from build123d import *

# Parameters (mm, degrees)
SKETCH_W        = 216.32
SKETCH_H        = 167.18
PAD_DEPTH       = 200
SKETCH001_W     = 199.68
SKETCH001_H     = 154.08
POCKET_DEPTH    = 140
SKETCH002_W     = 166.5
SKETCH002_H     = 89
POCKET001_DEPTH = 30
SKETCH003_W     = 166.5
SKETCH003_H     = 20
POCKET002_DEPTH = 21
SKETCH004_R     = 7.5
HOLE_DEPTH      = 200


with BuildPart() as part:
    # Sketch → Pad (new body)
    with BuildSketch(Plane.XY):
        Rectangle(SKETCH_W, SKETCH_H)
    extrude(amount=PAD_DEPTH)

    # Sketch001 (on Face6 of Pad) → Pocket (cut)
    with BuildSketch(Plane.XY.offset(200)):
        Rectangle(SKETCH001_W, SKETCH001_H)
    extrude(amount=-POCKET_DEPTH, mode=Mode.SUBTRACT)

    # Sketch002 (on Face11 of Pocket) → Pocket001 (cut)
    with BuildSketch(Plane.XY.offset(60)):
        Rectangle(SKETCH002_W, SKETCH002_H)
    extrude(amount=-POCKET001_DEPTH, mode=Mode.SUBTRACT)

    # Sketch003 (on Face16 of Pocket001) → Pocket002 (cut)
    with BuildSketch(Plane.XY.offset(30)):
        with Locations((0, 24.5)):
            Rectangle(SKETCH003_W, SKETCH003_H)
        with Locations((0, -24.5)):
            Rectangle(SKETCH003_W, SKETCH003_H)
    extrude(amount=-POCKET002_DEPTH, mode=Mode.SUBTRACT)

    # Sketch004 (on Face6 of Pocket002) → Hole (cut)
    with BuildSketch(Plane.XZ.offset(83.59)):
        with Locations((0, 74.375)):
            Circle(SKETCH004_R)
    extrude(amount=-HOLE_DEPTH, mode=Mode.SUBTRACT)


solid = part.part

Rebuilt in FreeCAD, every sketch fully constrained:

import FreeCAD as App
import Part
import Sketcher
Q = App.Units.Quantity

doc = App.newDocument("Part")
params = doc.addObject("Spreadsheet::Sheet", "Params")
for row, (alias, value) in enumerate([
    ("sketch1_width", "216.32 mm"),
    ("sketch1_height", "167.18 mm"),
    ("pad1_length", "200 mm"),
    ("sketch2_width", "199.68 mm"),
    ("sketch2_height", "154.08 mm"),
    ("pocket1_length", "140 mm"),
    ("sketch3_height", "89 mm"),
    ("sketch3_width", "166.5 mm"),
    ("pocket2_length", "30 mm"),
    ("sketch4_height", "20 mm"),
    ("sketch4_width", "166.5 mm"),
    ("pocket3_length", "21 mm"),
    ("sketch5_diameter", "15 mm"),
    ("pocket4_length", "200 mm"),
], start=1):
    params.set(f"A{row}", alias)
    params.set(f"B{row}", "=" + value)
    params.setAlias(f"B{row}", alias)

body = doc.addObject("PartDesign::Body", "Body")

# Sketch on XY plane
sketch1 = body.newObject("Sketcher::SketchObject", "Sketch")
sketch1.AttachmentSupport = (doc.getObject("XY_Plane"), [""])
sketch1.MapMode = "FlatFace"
sketch1.addGeometry([
    Part.LineSegment(App.Vector(-108, 84, 0), App.Vector(-108, -84, 0)),
    Part.LineSegment(App.Vector(-108, -84, 0), App.Vector(108, -84, 0)),
    Part.LineSegment(App.Vector(108, -84, 0), App.Vector(108, 84, 0)),
    Part.LineSegment(App.Vector(108, 84, 0), App.Vector(-108, 84, 0)),
], False)
sketch1.addConstraint([
    Sketcher.Constraint("Coincident", 0, 2, 1, 1),
    Sketcher.Constraint("Coincident", 1, 2, 2, 1),
    Sketcher.Constraint("Coincident", 2, 2, 3, 1),
    Sketcher.Constraint("Coincident", 3, 2, 0, 1),
    Sketcher.Constraint("Vertical", 0),
    Sketcher.Constraint("Horizontal", 1),
    Sketcher.Constraint("Vertical", 2),
    Sketcher.Constraint("Horizontal", 3),
    Sketcher.Constraint("Symmetric", 0, 2, 2, 2, -1, 1),
    Sketcher.Constraint("DistanceX", 1, 1, 1, 2, Q("216.32 mm")),
    Sketcher.Constraint("DistanceY", 0, 2, 0, 1, Q("167.18 mm")),
])
sketch1.setExpression("Constraints[9]", "Params.sketch1_width")
sketch1.setExpression("Constraints[10]", "Params.sketch1_height")
pad1 = body.newObject("PartDesign::Pad", "Pad")
pad1.Profile = sketch1
pad1.setExpression("Length", "Params.pad1_length")

# Sketch on XY plane
sketch2 = body.newObject("Sketcher::SketchObject", "Sketch001")
sketch2.AttachmentSupport = (doc.getObject("XY_Plane"), [""])
sketch2.MapMode = "FlatFace"
sketch2.AttachmentOffset = App.Placement(App.Vector(0, 0, 200), App.Rotation())
sketch2.addGeometry([
    Part.LineSegment(App.Vector(-100, 77, 0), App.Vector(-100, -77, 0)),
    Part.LineSegment(App.Vector(-100, -77, 0), App.Vector(100, -77, 0)),
    Part.LineSegment(App.Vector(100, -77, 0), App.Vector(100, 77, 0)),
    Part.LineSegment(App.Vector(100, 77, 0), App.Vector(-100, 77, 0)),
], False)
sketch2.addConstraint([
    Sketcher.Constraint("Coincident", 0, 2, 1, 1),
    Sketcher.Constraint("Coincident", 1, 2, 2, 1),
    Sketcher.Constraint("Coincident", 2, 2, 3, 1),
    Sketcher.Constraint("Coincident", 3, 2, 0, 1),
    Sketcher.Constraint("Vertical", 0),
    Sketcher.Constraint("Horizontal", 1),
    Sketcher.Constraint("Vertical", 2),
    Sketcher.Constraint("Horizontal", 3),
    Sketcher.Constraint("Symmetric", 0, 2, 2, 2, -1, 1),
    Sketcher.Constraint("DistanceX", 1, 1, 1, 2, Q("199.68 mm")),
    Sketcher.Constraint("DistanceY", 0, 2, 0, 1, Q("154.08 mm")),
])
sketch2.setExpression("Constraints[9]", "Params.sketch2_width")
sketch2.setExpression("Constraints[10]", "Params.sketch2_height")
pocket1 = body.newObject("PartDesign::Pocket", "Pocket")
pocket1.Profile = sketch2
pocket1.setExpression("Length", "Params.pocket1_length")

# Sketch on XY plane
sketch3 = body.newObject("Sketcher::SketchObject", "Sketch002")
sketch3.AttachmentSupport = (doc.getObject("XY_Plane"), [""])
sketch3.MapMode = "FlatFace"
sketch3.AttachmentOffset = App.Placement(App.Vector(0, 0, 60), App.Rotation())
sketch3.addGeometry([
    Part.LineSegment(App.Vector(-83, 44, 0), App.Vector(-83, -44, 0)),
    Part.LineSegment(App.Vector(-83, -44, 0), App.Vector(83, -44, 0)),
    Part.LineSegment(App.Vector(83, -44, 0), App.Vector(83, 44, 0)),
    Part.LineSegment(App.Vector(83, 44, 0), App.Vector(-83, 44, 0)),
], False)
sketch3.addConstraint([
    Sketcher.Constraint("Coincident", 0, 2, 1, 1),
    Sketcher.Constraint("Coincident", 1, 2, 2, 1),
    Sketcher.Constraint("Coincident", 2, 2, 3, 1),
    Sketcher.Constraint("Coincident", 3, 2, 0, 1),
    Sketcher.Constraint("Vertical", 0),
    Sketcher.Constraint("Horizontal", 1),
    Sketcher.Constraint("Vertical", 2),
    Sketcher.Constraint("Horizontal", 3),
    Sketcher.Constraint("Symmetric", 0, 2, 2, 2, -1, 1),
    Sketcher.Constraint("DistanceY", 0, 2, 0, 1, Q("89 mm")),
    Sketcher.Constraint("DistanceX", 1, 1, 1, 2, Q("166.5 mm")),
])
sketch3.setExpression("Constraints[9]", "Params.sketch3_height")
sketch3.setExpression("Constraints[10]", "Params.sketch3_width")
pocket2 = body.newObject("PartDesign::Pocket", "Pocket001")
pocket2.Profile = sketch3
pocket2.setExpression("Length", "Params.pocket2_length")

# Sketch on XY plane
sketch4 = body.newObject("Sketcher::SketchObject", "Sketch003")
sketch4.AttachmentSupport = (doc.getObject("XY_Plane"), [""])
sketch4.MapMode = "FlatFace"
sketch4.AttachmentOffset = App.Placement(App.Vector(0, 0, 30), App.Rotation())
sketch4.addGeometry([
    Part.LineSegment(App.Vector(-83, 34, 0), App.Vector(-83, 14, 0)),  # 0
    Part.LineSegment(App.Vector(-83, 14, 0), App.Vector(83, 14, 0)),  # 1
    Part.LineSegment(App.Vector(83, 14, 0), App.Vector(83, 34, 0)),  # 2
    Part.LineSegment(App.Vector(83, 34, 0), App.Vector(-83, 34, 0)),  # 3
    Part.LineSegment(App.Vector(-83, -14, 0), App.Vector(-83, -34, 0)),  # 4
    Part.LineSegment(App.Vector(-83, -34, 0), App.Vector(83, -34, 0)),  # 5
    Part.LineSegment(App.Vector(83, -34, 0), App.Vector(83, -14, 0)),  # 6
    Part.LineSegment(App.Vector(83, -14, 0), App.Vector(-83, -14, 0)),  # 7
], False)
sketch4.addConstraint([
    Sketcher.Constraint("Coincident", 0, 2, 1, 1),
    Sketcher.Constraint("Coincident", 1, 2, 2, 1),
    Sketcher.Constraint("Coincident", 2, 2, 3, 1),
    Sketcher.Constraint("Coincident", 3, 2, 0, 1),
    Sketcher.Constraint("Coincident", 4, 2, 5, 1),
    Sketcher.Constraint("Coincident", 5, 2, 6, 1),
    Sketcher.Constraint("Coincident", 6, 2, 7, 1),
    Sketcher.Constraint("Coincident", 7, 2, 4, 1),
    Sketcher.Constraint("Vertical", 0),
    Sketcher.Constraint("Horizontal", 1),
    Sketcher.Constraint("Vertical", 2),
    Sketcher.Constraint("Horizontal", 3),
    Sketcher.Constraint("Vertical", 4),
    Sketcher.Constraint("Horizontal", 5),
    Sketcher.Constraint("Vertical", 6),
    Sketcher.Constraint("Horizontal", 7),
    Sketcher.Constraint("Symmetric", 2, 2, 4, 2, -1, 1),
    Sketcher.Constraint("Symmetric", 0, 2, 6, 2, -1, 1),
    Sketcher.Constraint("Vertical", 3, 2, 4, 2),
    Sketcher.Constraint("DistanceY", 0, 2, 0, 1, Q("20 mm")),
    Sketcher.Constraint("DistanceX", 1, 1, 1, 2, Q("166.5 mm")),
    Sketcher.Constraint("DistanceY", 4, 2, 0, 2, Q("49 mm")),
])
sketch4.setExpression("Constraints[19]", "Params.sketch4_height")
sketch4.setExpression("Constraints[20]", "Params.sketch4_width")
pocket3 = body.newObject("PartDesign::Pocket", "Pocket002")
pocket3.Profile = sketch4
pocket3.setExpression("Length", "Params.pocket3_length")

# Sketch on XZ plane
sketch5 = body.newObject("Sketcher::SketchObject", "Sketch004")
sketch5.AttachmentSupport = (doc.getObject("XZ_Plane"), [""])
sketch5.MapMode = "FlatFace"
sketch5.AttachmentOffset = App.Placement(App.Vector(0, 0, 83.59), App.Rotation())
sketch5.addGeometry(Part.Circle(App.Vector(0, 74, 0), App.Vector(0, 0, 1), 8), False)
sketch5.addConstraint([
    Sketcher.Constraint("PointOnObject", 0, 3, -2),
    Sketcher.Constraint("Diameter", 0, Q("15 mm")),
    Sketcher.Constraint("DistanceY", -1, 1, 0, 3, Q("74.375 mm")),
])
sketch5.setExpression("Constraints[1]", "Params.sketch5_diameter")
pocket4 = body.newObject("PartDesign::Pocket", "Pocket003")
pocket4.Profile = sketch5
pocket4.setExpression("Length", "Params.pocket4_length")

doc.recompute()
